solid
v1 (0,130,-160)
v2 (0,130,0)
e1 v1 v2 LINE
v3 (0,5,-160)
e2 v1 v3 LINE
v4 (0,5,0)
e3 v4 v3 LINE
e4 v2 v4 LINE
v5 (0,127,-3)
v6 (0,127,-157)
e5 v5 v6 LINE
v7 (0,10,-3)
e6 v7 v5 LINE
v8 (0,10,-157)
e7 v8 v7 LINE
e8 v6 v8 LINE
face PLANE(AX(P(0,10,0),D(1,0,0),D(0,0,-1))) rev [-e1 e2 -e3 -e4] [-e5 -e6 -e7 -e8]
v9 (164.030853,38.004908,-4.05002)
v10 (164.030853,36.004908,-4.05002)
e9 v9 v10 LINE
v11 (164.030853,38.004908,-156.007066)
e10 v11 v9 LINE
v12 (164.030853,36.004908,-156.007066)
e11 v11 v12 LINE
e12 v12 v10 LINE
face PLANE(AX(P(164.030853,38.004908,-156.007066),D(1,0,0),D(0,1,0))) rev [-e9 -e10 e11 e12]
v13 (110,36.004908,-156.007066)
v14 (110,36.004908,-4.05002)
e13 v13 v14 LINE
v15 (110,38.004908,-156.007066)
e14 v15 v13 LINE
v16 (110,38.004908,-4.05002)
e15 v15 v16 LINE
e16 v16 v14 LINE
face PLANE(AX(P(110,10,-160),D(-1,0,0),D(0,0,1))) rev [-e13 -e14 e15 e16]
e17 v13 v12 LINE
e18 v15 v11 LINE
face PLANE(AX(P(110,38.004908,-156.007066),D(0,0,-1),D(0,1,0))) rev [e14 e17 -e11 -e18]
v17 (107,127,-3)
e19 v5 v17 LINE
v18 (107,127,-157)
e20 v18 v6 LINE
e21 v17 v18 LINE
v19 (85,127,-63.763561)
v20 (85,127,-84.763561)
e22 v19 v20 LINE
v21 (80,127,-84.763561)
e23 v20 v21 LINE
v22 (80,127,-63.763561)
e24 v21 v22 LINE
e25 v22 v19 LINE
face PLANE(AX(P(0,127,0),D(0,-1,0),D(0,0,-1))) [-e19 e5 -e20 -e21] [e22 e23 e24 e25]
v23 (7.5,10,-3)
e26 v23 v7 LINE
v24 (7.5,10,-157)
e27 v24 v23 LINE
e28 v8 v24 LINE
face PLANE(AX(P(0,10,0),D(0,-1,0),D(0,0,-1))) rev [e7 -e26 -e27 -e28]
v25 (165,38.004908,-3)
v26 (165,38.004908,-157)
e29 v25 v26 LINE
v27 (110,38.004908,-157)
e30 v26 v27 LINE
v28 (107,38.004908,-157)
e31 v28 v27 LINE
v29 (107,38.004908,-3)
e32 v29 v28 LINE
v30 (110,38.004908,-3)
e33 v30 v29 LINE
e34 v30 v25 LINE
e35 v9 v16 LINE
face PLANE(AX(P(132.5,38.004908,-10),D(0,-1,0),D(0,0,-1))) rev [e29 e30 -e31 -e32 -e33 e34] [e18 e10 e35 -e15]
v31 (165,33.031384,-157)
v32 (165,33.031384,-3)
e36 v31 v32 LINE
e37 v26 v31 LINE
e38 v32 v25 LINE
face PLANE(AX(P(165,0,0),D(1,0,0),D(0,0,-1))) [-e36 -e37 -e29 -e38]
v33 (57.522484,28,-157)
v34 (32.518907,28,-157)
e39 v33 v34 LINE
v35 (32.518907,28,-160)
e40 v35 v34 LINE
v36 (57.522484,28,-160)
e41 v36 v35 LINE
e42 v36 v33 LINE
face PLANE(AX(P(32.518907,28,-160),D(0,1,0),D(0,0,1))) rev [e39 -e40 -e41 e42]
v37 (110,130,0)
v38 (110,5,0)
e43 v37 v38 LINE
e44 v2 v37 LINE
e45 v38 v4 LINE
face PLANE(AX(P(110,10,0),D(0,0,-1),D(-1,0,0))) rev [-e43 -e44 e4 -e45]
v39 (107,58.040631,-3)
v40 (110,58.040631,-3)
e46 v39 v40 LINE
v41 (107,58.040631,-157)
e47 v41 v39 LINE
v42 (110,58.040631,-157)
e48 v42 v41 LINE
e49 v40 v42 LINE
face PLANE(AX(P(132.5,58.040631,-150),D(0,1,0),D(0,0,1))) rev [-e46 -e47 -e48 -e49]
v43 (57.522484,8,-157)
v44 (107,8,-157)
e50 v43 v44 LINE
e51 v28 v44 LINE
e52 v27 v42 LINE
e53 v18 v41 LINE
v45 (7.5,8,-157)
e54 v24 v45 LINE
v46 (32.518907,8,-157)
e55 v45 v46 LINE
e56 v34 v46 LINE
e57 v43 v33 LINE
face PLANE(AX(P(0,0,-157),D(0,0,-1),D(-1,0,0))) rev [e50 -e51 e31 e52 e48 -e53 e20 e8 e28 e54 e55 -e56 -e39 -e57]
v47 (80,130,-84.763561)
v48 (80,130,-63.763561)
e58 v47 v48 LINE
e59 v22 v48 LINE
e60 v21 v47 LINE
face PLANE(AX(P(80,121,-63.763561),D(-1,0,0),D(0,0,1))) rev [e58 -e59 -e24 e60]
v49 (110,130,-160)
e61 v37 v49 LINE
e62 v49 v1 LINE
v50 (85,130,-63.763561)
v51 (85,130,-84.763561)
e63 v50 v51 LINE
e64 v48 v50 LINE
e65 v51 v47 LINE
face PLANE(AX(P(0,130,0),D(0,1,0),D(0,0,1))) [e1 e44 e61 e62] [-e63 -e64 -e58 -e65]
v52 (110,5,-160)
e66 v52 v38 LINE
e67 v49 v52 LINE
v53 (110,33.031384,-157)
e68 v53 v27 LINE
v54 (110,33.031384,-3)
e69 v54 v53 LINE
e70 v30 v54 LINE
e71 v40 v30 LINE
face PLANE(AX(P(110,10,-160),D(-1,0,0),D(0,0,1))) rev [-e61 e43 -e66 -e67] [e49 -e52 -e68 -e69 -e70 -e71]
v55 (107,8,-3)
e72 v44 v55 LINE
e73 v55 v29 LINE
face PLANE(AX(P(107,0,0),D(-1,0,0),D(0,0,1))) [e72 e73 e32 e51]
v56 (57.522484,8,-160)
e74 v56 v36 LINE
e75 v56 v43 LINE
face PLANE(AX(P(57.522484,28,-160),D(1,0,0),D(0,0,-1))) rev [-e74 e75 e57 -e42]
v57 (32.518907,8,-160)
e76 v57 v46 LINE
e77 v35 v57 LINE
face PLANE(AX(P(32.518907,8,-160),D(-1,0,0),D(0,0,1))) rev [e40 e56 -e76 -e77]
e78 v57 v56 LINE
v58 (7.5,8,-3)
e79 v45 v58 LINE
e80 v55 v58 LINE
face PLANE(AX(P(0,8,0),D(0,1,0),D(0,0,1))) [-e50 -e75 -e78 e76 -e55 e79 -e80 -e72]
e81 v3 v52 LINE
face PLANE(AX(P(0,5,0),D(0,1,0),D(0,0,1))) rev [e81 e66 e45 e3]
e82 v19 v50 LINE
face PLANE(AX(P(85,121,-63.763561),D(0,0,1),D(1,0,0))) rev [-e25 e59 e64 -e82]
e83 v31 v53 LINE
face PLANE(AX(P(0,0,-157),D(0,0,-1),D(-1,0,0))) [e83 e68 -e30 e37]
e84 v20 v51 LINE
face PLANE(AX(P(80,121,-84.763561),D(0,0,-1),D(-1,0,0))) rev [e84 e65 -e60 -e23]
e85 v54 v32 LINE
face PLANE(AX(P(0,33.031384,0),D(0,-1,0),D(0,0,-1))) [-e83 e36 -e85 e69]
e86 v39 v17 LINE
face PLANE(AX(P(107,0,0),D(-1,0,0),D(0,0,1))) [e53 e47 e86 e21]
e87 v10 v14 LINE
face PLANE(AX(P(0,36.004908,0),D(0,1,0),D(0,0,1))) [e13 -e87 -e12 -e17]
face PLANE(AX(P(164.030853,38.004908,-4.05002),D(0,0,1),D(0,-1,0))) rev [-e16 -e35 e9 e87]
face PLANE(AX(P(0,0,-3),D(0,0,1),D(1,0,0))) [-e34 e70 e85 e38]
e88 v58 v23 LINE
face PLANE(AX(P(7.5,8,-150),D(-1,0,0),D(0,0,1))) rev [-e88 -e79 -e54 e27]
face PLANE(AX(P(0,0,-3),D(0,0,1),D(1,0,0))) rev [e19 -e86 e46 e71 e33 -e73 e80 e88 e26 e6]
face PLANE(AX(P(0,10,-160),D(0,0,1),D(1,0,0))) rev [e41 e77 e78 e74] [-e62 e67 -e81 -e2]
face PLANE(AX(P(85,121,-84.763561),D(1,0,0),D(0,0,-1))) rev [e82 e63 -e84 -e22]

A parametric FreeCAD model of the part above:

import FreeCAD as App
import Part
import Sketcher
from FreeCAD import Vector

doc = App.newDocument("Part")
body = doc.addObject("PartDesign::Body", "Body")

# Sketch on XZ plane
sketch1 = body.newObject("Sketcher::SketchObject", "Sketch")
sketch1.AttachmentSupport = (doc.getObject("XZ_Plane"), [""])
sketch1.MapMode = "FlatFace"
sketch1.addGeometry(Part.LineSegment(Vector(0, -160, 0), Vector(0, 0, 0)), False)
sketch1.addGeometry(Part.LineSegment(Vector(0, 0, 0), Vector(110, 0, 0)), False)
sketch1.addGeometry(Part.LineSegment(Vector(110, 0, 0), Vector(110, -160, 0)), False)
sketch1.addGeometry(Part.LineSegment(Vector(110, -160, 0), Vector(0, -160, 0)), False)
sketch1.addConstraint(Sketcher.Constraint("Coincident", 0, 2, 1, 1))
sketch1.addConstraint(Sketcher.Constraint("Coincident", 1, 2, 2, 1))
sketch1.addConstraint(Sketcher.Constraint("Coincident", 2, 2, 3, 1))
sketch1.addConstraint(Sketcher.Constraint("Coincident", 3, 2, 0, 1))
sketch1.addConstraint(Sketcher.Constraint("Vertical", 0))
sketch1.addConstraint(Sketcher.Constraint("Horizontal", 1))
sketch1.addConstraint(Sketcher.Constraint("Vertical", 2))
sketch1.addConstraint(Sketcher.Constraint("Horizontal", 3))
sketch1.addConstraint(Sketcher.Constraint("Coincident", 0, 2, -1, 1))
sketch1.addConstraint(Sketcher.Constraint("DistanceX", 1, 1, 1, 2, 110.0))
sketch1.addConstraint(Sketcher.Constraint("DistanceY", 0, 1, 0, 2, 160.0))
pad1 = body.newObject("PartDesign::Pad", "Pad")
pad1.Profile = sketch1
pad1.Length = 10
pad1.Reversed = True

# Sketch on XZ plane
sketch2 = body.newObject("Sketcher::SketchObject", "Sketch001")
sketch2.AttachmentSupport = (doc.getObject("XZ_Plane"), [""])
sketch2.MapMode = "FlatFace"
sketch2.AttachmentOffset = App.Placement(Vector(0, 0, -10), App.Rotation())
sketch2.addGeometry(Part.LineSegment(Vector(7.5, -150, 0), Vector(7.5, -10, 0)), False)
sketch2.addGeometry(Part.LineSegment(Vector(7.5, -10, 0), Vector(102.5, -10, 0)), False)
sketch2.addGeometry(Part.LineSegment(Vector(102.5, -10, 0), Vector(102.5, -150, 0)), False)
sketch2.addGeometry(Part.LineSegment(Vector(102.5, -150, 0), Vector(7.5, -150, 0)), False)
sketch2.addConstraint(Sketcher.Constraint("Coincident", 0, 2, 1, 1))
sketch2.addConstraint(Sketcher.Constraint("Coincident", 1, 2, 2, 1))
sketch2.addConstraint(Sketcher.Constraint("Coincident", 2, 2, 3, 1))
sketch2.addConstraint(Sketcher.Constraint("Coincident", 3, 2, 0, 1))
sketch2.addConstraint(Sketcher.Constraint("Vertical", 0))
sketch2.addConstraint(Sketcher.Constraint("Horizontal", 1))
sketch2.addConstraint(Sketcher.Constraint("Vertical", 2))
sketch2.addConstraint(Sketcher.Constraint("Horizontal", 3))
sketch2.addConstraint(Sketcher.Constraint("DistanceX", 1, 1, 1, 2, 95.0))
sketch2.addConstraint(Sketcher.Constraint("DistanceY", 0, 1, 0, 2, 140.0))
sketch2.addConstraint(Sketcher.Constraint("DistanceY", 0, 2, -1, 1, 10.0))
sketch2.addConstraint(Sketcher.Constraint("DistanceX", -1, 1, 0, 2, 7.5))
pocket1 = body.newObject("PartDesign::Pocket", "Pocket")
pocket1.Profile = sketch2
pocket1.Length = 2
pocket1.Reversed = True

# Sketch on XZ plane
sketch3 = body.newObject("Sketcher::SketchObject", "Sketch002")
sketch3.AttachmentSupport = (doc.getObject("XZ_Plane"), [""])
sketch3.MapMode = "FlatFace"
sketch3.AttachmentOffset = App.Placement(Vector(0, 0, -10), App.Rotation())
sketch3.addGeometry(Part.LineSegment(Vector(0, -160, 0), Vector(0, -150, 0)), False)
sketch3.addGeometry(Part.LineSegment(Vector(0, -150, 0), Vector(102.5, -150, 0)), False)
sketch3.addGeometry(Part.LineSegment(Vector(102.5, -150, 0), Vector(102.5, -10, 0)), False)
sketch3.addGeometry(Part.LineSegment(Vector(102.5, -10, 0), Vector(0, -10, 0)), False)
sketch3.addGeometry(Part.LineSegment(Vector(0, -10, 0), Vector(0, 0, 0)), False)
sketch3.addGeometry(Part.LineSegment(Vector(0, 0, 0), Vector(110, 0, 0)), False)
sketch3.addGeometry(Part.LineSegment(Vector(110, 0, 0), Vector(110, -160, 0)), False)
sketch3.addGeometry(Part.LineSegment(Vector(110, -160, 0), Vector(0, -160, 0)), False)
sketch3.addConstraint(Sketcher.Constraint("Coincident", 0, 2, 1, 1))
sketch3.addConstraint(Sketcher.Constraint("Coincident", 1, 2, 2, 1))
sketch3.addConstraint(Sketcher.Constraint("Coincident", 2, 2, 3, 1))
sketch3.addConstraint(Sketcher.Constraint("Coincident", 3, 2, 4, 1))
sketch3.addConstraint(Sketcher.Constraint("Coincident", 4, 2, 5, 1))
sketch3.addConstraint(Sketcher.Constraint("Coincident", 5, 2, 6, 1))
sketch3.addConstraint(Sketcher.Constraint("Coincident", 6, 2, 7, 1))
sketch3.addConstraint(Sketcher.Constraint("Coincident", 7, 2, 0, 1))
sketch3.addConstraint(Sketcher.Constraint("Vertical", 0))
sketch3.addConstraint(Sketcher.Constraint("Horizontal", 1))
sketch3.addConstraint(Sketcher.Constraint("Vertical", 2))
sketch3.addConstraint(Sketcher.Constraint("Horizontal", 3))
sketch3.addConstraint(Sketcher.Constraint("Vertical", 4))
sketch3.addConstraint(Sketcher.Constraint("Horizontal", 5))
sketch3.addConstraint(Sketcher.Constraint("Vertical", 6))
sketch3.addConstraint(Sketcher.Constraint("Horizontal", 7))
sketch3.addConstraint(Sketcher.Constraint("Coincident", 4, 2, -1, 1))
sketch3.addConstraint(Sketcher.Constraint("PointOnObject", 0, 2, -2))
sketch3.addConstraint(Sketcher.Constraint("Equal", 0, 4))
sketch3.addConstraint(Sketcher.Constraint("DistanceX", 5, 1, 5, 2, 110.0))
sketch3.addConstraint(Sketcher.Constraint("DistanceY", 0, 1, 0, 2, 10.0))
sketch3.addConstraint(Sketcher.Constraint("DistanceY", 2, 1, 2, 2, 140.0))
sketch3.addConstraint(Sketcher.Constraint("DistanceX", 1, 1, 1, 2, 102.5))
pad2 = body.newObject("PartDesign::Pad", "Pad001")
pad2.Profile = sketch3
pad2.Length = 110
pad2.Reversed = True

# Sketch on XY plane
sketch4 = body.newObject("Sketcher::SketchObject", "Sketch003")
sketch4.AttachmentSupport = (doc.getObject("XY_Plane"), [""])
sketch4.MapMode = "FlatFace"
sketch4.AttachmentOffset = App.Placement(Vector(0, 0, -150), App.Rotation())
sketch4.addGeometry(Part.LineSegment(Vector(32.518907, 28, 0), Vector(32.518907, 8, 0)), False)
sketch4.addGeometry(Part.LineSegment(Vector(32.518907, 8, 0), Vector(57.522484, 8, 0)), False)
sketch4.addGeometry(Part.LineSegment(Vector(57.522484, 8, 0), Vector(57.522484, 28, 0)), False)
sketch4.addGeometry(Part.LineSegment(Vector(57.522484, 28, 0), Vector(32.518907, 28, 0)), False)
sketch4.addConstraint(Sketcher.Constraint("Coincident", 0, 2, 1, 1))
sketch4.addConstraint(Sketcher.Constraint("Coincident", 1, 2, 2, 1))
sketch4.addConstraint(Sketcher.Constraint("Coincident", 2, 2, 3, 1))
sketch4.addConstraint(Sketcher.Constraint("Coincident", 3, 2, 0, 1))
sketch4.addConstraint(Sketcher.Constraint("Vertical", 0))
sketch4.addConstraint(Sketcher.Constraint("Horizontal", 1))
sketch4.addConstraint(Sketcher.Constraint("Vertical", 2))
sketch4.addConstraint(Sketcher.Constraint("Horizontal", 3))
sketch4.addConstraint(Sketcher.Constraint("DistanceY", 0, 2, 0, 1, 20.0))
sketch4.addConstraint(Sketcher.Constraint("DistanceY", -1, 1, 0, 2, 8.0))
sketch4.addConstraint(Sketcher.Constraint("DistanceX", 1, 1, 1, 2, 25.003577))
sketch4.addConstraint(Sketcher.Constraint("DistanceX", -1, 1, 0, 2, 32.518907))
pocket2 = body.newObject("PartDesign::Pocket", "Pocket001")
pocket2.Profile = sketch4
pocket2.Length = 10

# Sketch on YZ plane
sketch5 = body.newObject("Sketcher::SketchObject", "Sketch004")
sketch5.AttachmentSupport = (doc.getObject("YZ_Plane"), [""])
sketch5.MapMode = "FlatFace"
sketch5.AttachmentOffset = App.Placement(Vector(0, 0, 102.5), App.Rotation())
sketch5.addGeometry(Part.LineSegment(Vector(58.040631, -150, 0), Vector(38.004908, -150, 0)), False)
sketch5.addGeometry(Part.LineSegment(Vector(38.004908, -150, 0), Vector(38.004908, -10, 0)), False)
sketch5.addGeometry(Part.LineSegment(Vector(38.004908, -10, 0), Vector(58.040631, -10, 0)), False)
sketch5.addGeometry(Part.LineSegment(Vector(58.040631, -10, 0), Vector(58.040631, -150, 0)), False)
sketch5.addConstraint(Sketcher.Constraint("Coincident", 0, 2, 1, 1))
sketch5.addConstraint(Sketcher.Constraint("Coincident", 1, 2, 2, 1))
sketch5.addConstraint(Sketcher.Constraint("Coincident", 2, 2, 3, 1))
sketch5.addConstraint(Sketcher.Constraint("Coincident", 3, 2, 0, 1))
sketch5.addConstraint(Sketcher.Constraint("Horizontal", 0))
sketch5.addConstraint(Sketcher.Constraint("Vertical", 1))
sketch5.addConstraint(Sketcher.Constraint("Horizontal", 2))
sketch5.addConstraint(Sketcher.Constraint("Vertical", 3))
sketch5.addConstraint(Sketcher.Constraint("DistanceY", 1, 1, 1, 2, 140.0))
sketch5.addConstraint(Sketcher.Constraint("DistanceY", 0, 2, -1, 1, 150.0))
sketch5.addConstraint(Sketcher.Constraint("DistanceX", 0, 2, 0, 1, 20.035723))
sketch5.addConstraint(Sketcher.Constraint("DistanceX", -1, 1, 2, 2, 58.040631))
pocket3 = body.newObject("PartDesign::Pocket", "Pocket002")
pocket3.Profile = sketch5
pocket3.Length = 30
pocket3.Reversed = True

# Sketch on YZ plane
sketch6 = body.newObject("Sketcher::SketchObject", "Sketch005")
sketch6.AttachmentSupport = (doc.getObject("YZ_Plane"), [""])
sketch6.MapMode = "FlatFace"
sketch6.AttachmentOffset = App.Placement(Vector(0, 0, 110), App.Rotation())
sketch6.addGeometry(Part.LineSegment(Vector(38.004908, -10, 0), Vector(28.031384, -10, 0)), False)
sketch6.addGeometry(Part.LineSegment(Vector(28.031384, -10, 0), Vector(28.031384, -150, 0)), False)
sketch6.addGeometry(Part.LineSegment(Vector(28.031384, -150, 0), Vector(38.004908, -150, 0)), False)
sketch6.addGeometry(Part.LineSegment(Vector(38.004908, -150, 0), Vector(38.004908, -10, 0)), False)
sketch6.addConstraint(Sketcher.Constraint("Coincident", 0, 2, 1, 1))
sketch6.addConstraint(Sketcher.Constraint("Coincident", 1, 2, 2, 1))
sketch6.addConstraint(Sketcher.Constraint("Coincident", 2, 2, 3, 1))
sketch6.addConstraint(Sketcher.Constraint("Coincident", 3, 2, 0, 1))
sketch6.addConstraint(Sketcher.Constraint("Horizontal", 0))
sketch6.addConstraint(Sketcher.Constraint("Vertical", 1))
sketch6.addConstraint(Sketcher.Constraint("Horizontal", 2))
sketch6.addConstraint(Sketcher.Constraint("Vertical", 3))
sketch6.addConstraint(Sketcher.Constraint("DistanceY", 1, 2, 1, 1, 140.0))
sketch6.addConstraint(Sketcher.Constraint("DistanceY", 0, 2, -1, 1, 10.0))
sketch6.addConstraint(Sketcher.Constraint("DistanceX", 0, 2, 0, 1, 9.973523))
sketch6.addConstraint(Sketcher.Constraint("DistanceX", -1, 1, 0, 2, 28.031384))
pad3 = body.newObject("PartDesign::Pad", "Pad002")
pad3.Profile = sketch6
pad3.Length = 55

# Sketch on XZ plane
sketch7 = body.newObject("Sketcher::SketchObject", "Sketch006")
sketch7.AttachmentSupport = (doc.getObject("XZ_Plane"), [""])
sketch7.MapMode = "FlatFace"
sketch7.AttachmentOffset = App.Placement(Vector(0, 0, -38.004908), App.Rotation())
sketch7.addGeometry(Part.LineSegment(Vector(110, -150, 0), Vector(110, -10, 0)), False)
sketch7.addGeometry(Part.LineSegment(Vector(110, -10, 0), Vector(165, -10, 0)), False)
sketch7.addGeometry(Part.LineSegment(Vector(165, -10, 0), Vector(165, -150, 0)), False)
sketch7.addGeometry(Part.LineSegment(Vector(165, -150, 0), Vector(110, -150, 0)), False)
sketch7.addConstraint(Sketcher.Constraint("Coincident", 0, 2, 1, 1))
sketch7.addConstraint(Sketcher.Constraint("Coincident", 1, 2, 2, 1))
sketch7.addConstraint(Sketcher.Constraint("Coincident", 2, 2, 3, 1))
sketch7.addConstraint(Sketcher.Constraint("Coincident", 3, 2, 0, 1))
sketch7.addConstraint(Sketcher.Constraint("Vertical", 0))
sketch7.addConstraint(Sketcher.Constraint("Horizontal", 1))
sketch7.addConstraint(Sketcher.Constraint("Vertical", 2))
sketch7.addConstraint(Sketcher.Constraint("Horizontal", 3))
sketch7.addConstraint(Sketcher.Constraint("DistanceX", 1, 1, 1, 2, 55.0))
sketch7.addConstraint(Sketcher.Constraint("DistanceY", 0, 1, 0, 2, 140.0))
sketch7.addConstraint(Sketcher.Constraint("DistanceX", -1, 1, 0, 2, 110.0))
sketch7.addConstraint(Sketcher.Constraint("DistanceY", 0, 2, -1, 1, 10.0))
pocket4 = body.newObject("PartDesign::Pocket", "Pocket003")
pocket4.Profile = sketch7
pocket4.Length = 2
pocket4.Reversed = True

# Sketch on XZ plane
sketch8 = body.newObject("Sketcher::SketchObject", "Sketch007")
sketch8.AttachmentSupport = (doc.getObject("XZ_Plane"), [""])
sketch8.MapMode = "FlatFace"
sketch8.AttachmentOffset = App.Placement(Vector(0, 0, -120), App.Rotation())
sketch8.addGeometry(Part.LineSegment(Vector(0, -160, 0), Vector(0, 0, 0)), False)
sketch8.addGeometry(Part.LineSegment(Vector(0, 0, 0), Vector(110, 0, 0)), False)
sketch8.addGeometry(Part.LineSegment(Vector(110, 0, 0), Vector(110, -160, 0)), False)
sketch8.addGeometry(Part.LineSegment(Vector(110, -160, 0), Vector(0, -160, 0)), False)
sketch8.addConstraint(Sketcher.Constraint("Coincident", 0, 2, 1, 1))
sketch8.addConstraint(Sketcher.Constraint("Coincident", 1, 2, 2, 1))
sketch8.addConstraint(Sketcher.Constraint("Coincident", 2, 2, 3, 1))
sketch8.addConstraint(Sketcher.Constraint("Coincident", 3, 2, 0, 1))
sketch8.addConstraint(Sketcher.Constraint("Vertical", 0))
sketch8.addConstraint(Sketcher.Constraint("Horizontal", 1))
sketch8.addConstraint(Sketcher.Constraint("Vertical", 2))
sketch8.addConstraint(Sketcher.Constraint("Horizontal", 3))
sketch8.addConstraint(Sketcher.Constraint("Coincident", 0, 2, -1, 1))
sketch8.addConstraint(Sketcher.Constraint("DistanceX", 1, 1, 1, 2, 110.0))
sketch8.addConstraint(Sketcher.Constraint("DistanceY", 0, 1, 0, 2, 160.0))
pad4 = body.newObject("PartDesign::Pad", "Pad003")
pad4.Profile = sketch8
pad4.Length = 10
pad4.Reversed = True

# Sketch on XZ plane
sketch9 = body.newObject("Sketcher::SketchObject", "Sketch008")
sketch9.AttachmentSupport = (doc.getObject("XZ_Plane"), [""])
sketch9.MapMode = "FlatFace"
sketch9.AttachmentOffset = App.Placement(Vector(0, 0, -130), App.Rotation())
sketch9.addGeometry(Part.LineSegment(Vector(80, -84.763561, 0), Vector(80, -63.763561, 0)), False)
sketch9.addGeometry(Part.LineSegment(Vector(80, -63.763561, 0), Vector(85, -63.763561, 0)), False)
sketch9.addGeometry(Part.LineSegment(Vector(85, -63.763561, 0), Vector(85, -84.763561, 0)), False)
sketch9.addGeometry(Part.LineSegment(Vector(85, -84.763561, 0), Vector(80, -84.763561, 0)), False)
sketch9.addConstraint(Sketcher.Constraint("Coincident", 0, 2, 1, 1))
sketch9.addConstraint(Sketcher.Constraint("Coincident", 1, 2, 2, 1))
sketch9.addConstraint(Sketcher.Constraint("Coincident", 2, 2, 3, 1))
sketch9.addConstraint(Sketcher.Constraint("Coincident", 3, 2, 0, 1))
sketch9.addConstraint(Sketcher.Constraint("Vertical", 0))
sketch9.addConstraint(Sketcher.Constraint("Horizontal", 1))
sketch9.addConstraint(Sketcher.Constraint("Vertical", 2))
sketch9.addConstraint(Sketcher.Constraint("Horizontal", 3))
sketch9.addConstraint(Sketcher.Constraint("DistanceX", 1, 1, 1, 2, 5.0))
sketch9.addConstraint(Sketcher.Constraint("DistanceY", 0, 1, 0, 2, 21.0))
sketch9.addConstraint(Sketcher.Constraint("DistanceX", -1, 1, 0, 2, 80.0))
sketch9.addConstraint(Sketcher.Constraint("DistanceY", 0, 2, -1, 1, 63.763561))
pocket5 = body.newObject("PartDesign::Pocket", "Pocket004")
pocket5.Profile = sketch9
pocket5.Length = 9
pocket5.Reversed = True

# Sketch on XZ plane
sketch10 = body.newObject("Sketcher::SketchObject", "Sketch009")
sketch10.AttachmentSupport = (doc.getObject("XZ_Plane"), [""])
sketch10.MapMode = "FlatFace"
sketch10.AttachmentOffset = App.Placement(Vector(0, 0, -120), App.Rotation())
sketch10.addGeometry(Part.LineSegment(Vector(0, -10, 0), Vector(0, -150, 0)), False)
sketch10.addGeometry(Part.LineSegment(Vector(0, -150, 0), Vector(102.5, -150, 0)), False)
sketch10.addGeometry(Part.LineSegment(Vector(102.5, -150, 0), Vector(102.5, -10, 0)), False)
sketch10.addGeometry(Part.LineSegment(Vector(102.5, -10, 0), Vector(0, -10, 0)), False)
sketch10.addConstraint(Sketcher.Constraint("Coincident", 0, 2, 1, 1))
sketch10.addConstraint(Sketcher.Constraint("Coincident", 1, 2, 2, 1))
sketch10.addConstraint(Sketcher.Constraint("Coincident", 2, 2, 3, 1))
sketch10.addConstraint(Sketcher.Constraint("Coincident", 3, 2, 0, 1))
sketch10.addConstraint(Sketcher.Constraint("Vertical", 0))
sketch10.addConstraint(Sketcher.Constraint("Horizontal", 1))
sketch10.addConstraint(Sketcher.Constraint("Vertical", 2))
sketch10.addConstraint(Sketcher.Constraint("Horizontal", 3))
sketch10.addConstraint(Sketcher.Constraint("PointOnObject", 0, 2, -2))
sketch10.addConstraint(Sketcher.Constraint("DistanceY", 0, 2, 0, 1, 140.0))
sketch10.addConstraint(Sketcher.Constraint("DistanceX", 1, 1, 1, 2, 102.5))
sketch10.addConstraint(Sketcher.Constraint("DistanceY", 0, 2, -1, 1, 150.0))
pocket6 = body.newObject("PartDesign::Pocket", "Pocket005")
pocket6.Profile = sketch10
pocket6.Length = 7

# Sketch on XY plane
sketch11 = body.newObject("Sketcher::SketchObject", "Sketch010")
sketch11.AttachmentSupport = (doc.getObject("XY_Plane"), [""])
sketch11.MapMode = "FlatFace"
sketch11.AttachmentOffset = App.Placement(Vector(0, 0, -150), App.Rotation())
sketch11.addGeometry(Part.LineSegment(Vector(7.5, 10, 0), Vector(7.5, 8, 0)), False)
sketch11.addGeometry(Part.LineSegment(Vector(7.5, 8, 0), Vector(102.5, 8, 0)), False)
sketch11.addGeometry(Part.LineSegment(Vector(102.5, 8, 0), Vector(102.5, 38.004908, 0)), False)
sketch11.addGeometry(Part.LineSegment(Vector(102.5, 38.004908, 0), Vector(110, 38.004908, 0)), False)
sketch11.addGeometry(Part.LineSegment(Vector(110, 38.004908, 0), Vector(110, 58.040631, 0)), False)
sketch11.addGeometry(Part.LineSegment(Vector(110, 58.040631, 0), Vector(102.5, 58.040631, 0)), False)
sketch11.addGeometry(Part.LineSegment(Vector(102.5, 58.040631, 0), Vector(102.5, 127, 0)), False)
sketch11.addGeometry(Part.LineSegment(Vector(102.5, 127, 0), Vector(0, 127, 0)), False)
sketch11.addGeometry(Part.LineSegment(Vector(0, 127, 0), Vector(0, 10, 0)), False)
sketch11.addGeometry(Part.LineSegment(Vector(0, 10, 0), Vector(7.5, 10, 0)), False)
sketch11.addConstraint(Sketcher.Constraint("Coincident", 0, 2, 1, 1))
sketch11.addConstraint(Sketcher.Constraint("Coincident", 1, 2, 2, 1))
sketch11.addConstraint(Sketcher.Constraint("Coincident", 2, 2, 3, 1))
sketch11.addConstraint(Sketcher.Constraint("Coincident", 3, 2, 4, 1))
sketch11.addConstraint(Sketcher.Constraint("Coincident", 4, 2, 5, 1))
sketch11.addConstraint(Sketcher.Constraint("Coincident", 5, 2, 6, 1))
sketch11.addConstraint(Sketcher.Constraint("Coincident", 6, 2, 7, 1))
sketch11.addConstraint(Sketcher.Constraint("Coincident", 7, 2, 8, 1))
sketch11.addConstraint(Sketcher.Constraint("Coincident", 8, 2, 9, 1))
sketch11.addConstraint(Sketcher.Constraint("Coincident", 9, 2, 0, 1))
sketch11.addConstraint(Sketcher.Constraint("Vertical", 0))
sketch11.addConstraint(Sketcher.Constraint("Horizontal", 1))
sketch11.addConstraint(Sketcher.Constraint("Vertical", 2))
sketch11.addConstraint(Sketcher.Constraint("Horizontal", 3))
sketch11.addConstraint(Sketcher.Constraint("Vertical", 4))
sketch11.addConstraint(Sketcher.Constraint("Horizontal", 5))
sketch11.addConstraint(Sketcher.Constraint("Vertical", 6))
sketch11.addConstraint(Sketcher.Constraint("Horizontal", 7))
sketch11.addConstraint(Sketcher.Constraint("Vertical", 8))
sketch11.addConstraint(Sketcher.Constraint("Horizontal", 9))
sketch11.addConstraint(Sketcher.Constraint("PointOnObject", 7, 2, -2))
sketch11.addConstraint(Sketcher.Constraint("Vertical", 2, 2, 5, 2))
sketch11.addConstraint(Sketcher.Constraint("Equal", 5, 9))
sketch11.addConstraint(Sketcher.Constraint("DistanceX", 1, 1, 1, 2, 95.0))
sketch11.addConstraint(Sketcher.Constraint("DistanceY", 0, 2, 0, 1, 2.0))
sketch11.addConstraint(Sketcher.Constraint("DistanceY", 8, 2, 8, 1, 117.0))
sketch11.addConstraint(Sketcher.Constraint("DistanceX", 3, 1, 3, 2, 7.5))
sketch11.addConstraint(Sketcher.Constraint("DistanceY", -1, 1, 0, 2, 8.0))
sketch11.addConstraint(Sketcher.Constraint("DistanceY", 6, 1, 6, 2, 68.959369))
sketch11.addConstraint(Sketcher.Constraint("DistanceY", 2, 1, 2, 2, 30.004908))
pocket7 = body.newObject("PartDesign::Pocket", "Pocket006")
pocket7.Profile = sketch11
pocket7.Length = 7

# Sketch on XY plane
sketch12 = body.newObject("Sketcher::SketchObject", "Sketch011")
sketch12.AttachmentSupport = (doc.getObject("XY_Plane"), [""])
sketch12.MapMode = "FlatFace"
sketch12.AttachmentOffset = App.Placement(Vector(0, 0, -10), App.Rotation())
sketch12.addGeometry(Part.LineSegment(Vector(0, 127, 0), Vector(102.5, 127, 0)), False)
sketch12.addGeometry(Part.LineSegment(Vector(102.5, 127, 0), Vector(102.5, 58.040631, 0)), False)
sketch12.addGeometry(Part.LineSegment(Vector(102.5, 58.040631, 0), Vector(110, 58.040631, 0)), False)
sketch12.addGeometry(Part.LineSegment(Vector(110, 58.040631, 0), Vector(110, 38.004908, 0)), False)
sketch12.addGeometry(Part.LineSegment(Vector(110, 38.004908, 0), Vector(102.5, 38.004908, 0)), False)
sketch12.addGeometry(Part.LineSegment(Vector(102.5, 38.004908, 0), Vector(102.5, 8, 0)), False)
sketch12.addGeometry(Part.LineSegment(Vector(102.5, 8, 0), Vector(7.5, 8, 0)), False)
sketch12.addGeometry(Part.LineSegment(Vector(7.5, 8, 0), Vector(7.5, 10, 0)), False)
sketch12.addGeometry(Part.LineSegment(Vector(7.5, 10, 0), Vector(0, 10, 0)), False)
sketch12.addGeometry(Part.LineSegment(Vector(0, 10, 0), Vector(0, 127, 0)), False)
sketch12.addConstraint(Sketcher.Constraint("Coincident", 0, 2, 1, 1))
sketch12.addConstraint(Sketcher.Constraint("Coincident", 1, 2, 2, 1))
sketch12.addConstraint(Sketcher.Constraint("Coincident", 2, 2, 3, 1))
sketch12.addConstraint(Sketcher.Constraint("Coincident", 3, 2, 4, 1))
sketch12.addConstraint(Sketcher.Constraint("Coincident", 4, 2, 5, 1))
sketch12.addConstraint(Sketcher.Constraint("Coincident", 5, 2, 6, 1))
sketch12.addConstraint(Sketcher.Constraint("Coincident", 6, 2, 7, 1))
sketch12.addConstraint(Sketcher.Constraint("Coincident", 7, 2, 8, 1))
sketch12.addConstraint(Sketcher.Constraint("Coincident", 8, 2, 9, 1))
sketch12.addConstraint(Sketcher.Constraint("Coincident", 9, 2, 0, 1))
sketch12.addConstraint(Sketcher.Constraint("Horizontal", 0))
sketch12.addConstraint(Sketcher.Constraint("Vertical", 1))
sketch12.addConstraint(Sketcher.Constraint("Horizontal", 2))
sketch12.addConstraint(Sketcher.Constraint("Vertical", 3))
sketch12.addConstraint(Sketcher.Constraint("Horizontal", 4))
sketch12.addConstraint(Sketcher.Constraint("Vertical", 5))
sketch12.addConstraint(Sketcher.Constraint("Horizontal", 6))
sketch12.addConstraint(Sketcher.Constraint("Vertical", 7))
sketch12.addConstraint(Sketcher.Constraint("Horizontal", 8))
sketch12.addConstraint(Sketcher.Constraint("Vertical", 9))
sketch12.addConstraint(Sketcher.Constraint("PointOnObject", 8, 2, -2))
sketch12.addConstraint(Sketcher.Constraint("Vertical", 1, 2, 4, 2))
sketch12.addConstraint(Sketcher.Constraint("Equal", 4, 8))
sketch12.addConstraint(Sketcher.Constraint("DistanceX", 6, 2, 6, 1, 95.0))
sketch12.addConstraint(Sketcher.Constraint("DistanceY", 7, 1, 7, 2, 2.0))
sketch12.addConstraint(Sketcher.Constraint("DistanceY", 9, 1, 9, 2, 117.0))
sketch12.addConstraint(Sketcher.Constraint("DistanceX", 0, 1, 0, 2, 102.5))
sketch12.addConstraint(Sketcher.Constraint("DistanceY", -1, 1, 0, 2, 127.0))
sketch12.addConstraint(Sketcher.Constraint("DistanceY", 1, 2, 1, 1, 68.959369))
sketch12.addConstraint(Sketcher.Constraint("DistanceY", 3, 2, 3, 1, 20.035723))
pocket8 = body.newObject("PartDesign::Pocket", "Pocket007")
pocket8.Profile = sketch12
pocket8.Length = 7
pocket8.Reversed = True

# Sketch on XZ plane
sketch13 = body.newObject("Sketcher::SketchObject", "Sketch012")
sketch13.AttachmentSupport = (doc.getObject("XZ_Plane"), [""])
sketch13.MapMode = "FlatFace"
sketch13.addGeometry(Part.LineSegment(Vector(0, 0, 0), Vector(0, -160, 0)), False)
sketch13.addGeometry(Part.LineSegment(Vector(0, -160, 0), Vector(110, -160, 0)), False)
sketch13.addGeometry(Part.LineSegment(Vector(110, -160, 0), Vector(110, 0, 0)), False)
sketch13.addGeometry(Part.LineSegment(Vector(110, 0, 0), Vector(0, 0, 0)), False)
sketch13.addConstraint(Sketcher.Constraint("Coincident", 0, 2, 1, 1))
sketch13.addConstraint(Sketcher.Constraint("Coincident", 1, 2, 2, 1))
sketch13.addConstraint(Sketcher.Constraint("Coincident", 2, 2, 3, 1))
sketch13.addConstraint(Sketcher.Constraint("Coincident", 3, 2, 0, 1))
sketch13.addConstraint(Sketcher.Constraint("Vertical", 0))
sketch13.addConstraint(Sketcher.Constraint("Horizontal", 1))
sketch13.addConstraint(Sketcher.Constraint("Vertical", 2))
sketch13.addConstraint(Sketcher.Constraint("Horizontal", 3))
sketch13.addConstraint(Sketcher.Constraint("Coincident", 3, 2, -1, 1))
sketch13.addConstraint(Sketcher.Constraint("DistanceX", 1, 1, 1, 2, 110.0))
sketch13.addConstraint(Sketcher.Constraint("DistanceY", 0, 2, 0, 1, 160.0))
pocket9 = body.newObject("PartDesign::Pocket", "Pocket008")
pocket9.Profile = sketch13
pocket9.Length = 5

# Sketch on YZ plane
sketch14 = body.newObject("Sketcher::SketchObject", "Sketch013")
sketch14.AttachmentSupport = (doc.getObject("YZ_Plane"), [""])
sketch14.MapMode = "FlatFace"
sketch14.AttachmentOffset = App.Placement(Vector(0, 0, 102.5), App.Rotation())
sketch14.addGeometry(Part.LineSegment(Vector(127, -157, 0), Vector(8, -157, 0)), False)
sketch14.addGeometry(Part.LineSegment(Vector(8, -157, 0), Vector(8, -3, 0)), False)
sketch14.addGeometry(Part.LineSegment(Vector(8, -3, 0), Vector(127, -3, 0)), False)
sketch14.addGeometry(Part.LineSegment(Vector(127, -3, 0), Vector(127, -157, 0)), False)
sketch14.addConstraint(Sketcher.Constraint("Coincident", 0, 2, 1, 1))
sketch14.addConstraint(Sketcher.Constraint("Coincident", 1, 2, 2, 1))
sketch14.addConstraint(Sketcher.Constraint("Coincident", 2, 2, 3, 1))
sketch14.addConstraint(Sketcher.Constraint("Coincident", 3, 2, 0, 1))
sketch14.addConstraint(Sketcher.Constraint("Horizontal", 0))
sketch14.addConstraint(Sketcher.Constraint("Vertical", 1))
sketch14.addConstraint(Sketcher.Constraint("Horizontal", 2))
sketch14.addConstraint(Sketcher.Constraint("Vertical", 3))
sketch14.addConstraint(Sketcher.Constraint("DistanceX", 0, 2, 0, 1, 119.0))
sketch14.addConstraint(Sketcher.Constraint("DistanceY", 1, 1, 1, 2, 154.0))
sketch14.addConstraint(Sketcher.Constraint("DistanceX", -1, 1, 0, 2, 8.0))
sketch14.addConstraint(Sketcher.Constraint("DistanceY", 0, 2, -1, 1, 157.0))
pocket10 = body.newObject("PartDesign::Pocket", "Pocket009")
pocket10.Profile = sketch14
pocket10.Length = 4.5
pocket10.Reversed = True

# Sketch on XZ plane
sketch15 = body.newObject("Sketcher::SketchObject", "Sketch014")
sketch15.AttachmentSupport = (doc.getObject("XZ_Plane"), [""])
sketch15.MapMode = "FlatFace"
sketch15.AttachmentOffset = App.Placement(Vector(0, 0, -28.031384), App.Rotation())
sketch15.addGeometry(Part.LineSegment(Vector(110, -10, 0), Vector(110, -150, 0)), False)
sketch15.addGeometry(Part.LineSegment(Vector(110, -150, 0), Vector(165, -150, 0)), False)
sketch15.addGeometry(Part.LineSegment(Vector(165, -150, 0), Vector(165, -10, 0)), False)
sketch15.addGeometry(Part.LineSegment(Vector(165, -10, 0), Vector(110, -10, 0)), False)
sketch15.addConstraint(Sketcher.Constraint("Coincident", 0, 2, 1, 1))
sketch15.addConstraint(Sketcher.Constraint("Coincident", 1, 2, 2, 1))
sketch15.addConstraint(Sketcher.Constraint("Coincident", 2, 2, 3, 1))
sketch15.addConstraint(Sketcher.Constraint("Coincident", 3, 2, 0, 1))
sketch15.addConstraint(Sketcher.Constraint("Vertical", 0))
sketch15.addConstraint(Sketcher.Constraint("Horizontal", 1))
sketch15.addConstraint(Sketcher.Constraint("Vertical", 2))
sketch15.addConstraint(Sketcher.Constraint("Horizontal", 3))
sketch15.addConstraint(Sketcher.Constraint("DistanceX", 1, 1, 1, 2, 55.0))
sketch15.addConstraint(Sketcher.Constraint("DistanceY", 0, 2, 0, 1, 140.0))
sketch15.addConstraint(Sketcher.Constraint("DistanceX", -1, 1, 0, 2, 110.0))
sketch15.addConstraint(Sketcher.Constraint("DistanceY", 0, 2, -1, 1, 150.0))
pocket11 = body.newObject("PartDesign::Pocket", "Pocket010")
pocket11.Profile = sketch15
pocket11.Length = 5

# Sketch on XY plane
sketch16 = body.newObject("Sketcher::SketchObject", "Sketch015")
sketch16.AttachmentSupport = (doc.getObject("XY_Plane"), [""])
sketch16.MapMode = "FlatFace"
sketch16.AttachmentOffset = App.Placement(Vector(0, 0, -10), App.Rotation())
sketch16.addGeometry(Part.LineSegment(Vector(110, 36.004908, 0), Vector(110, 33.031384, 0)), False)
sketch16.addGeometry(Part.LineSegment(Vector(110, 33.031384, 0), Vector(165, 33.031384, 0)), False)
sketch16.addGeometry(Part.LineSegment(Vector(165, 33.031384, 0), Vector(165, 36.004908, 0)), False)
sketch16.addGeometry(Part.LineSegment(Vector(165, 36.004908, 0), Vector(110, 36.004908, 0)), False)
sketch16.addConstraint(Sketcher.Constraint("Coincident", 0, 2, 1, 1))
sketch16.addConstraint(Sketcher.Constraint("Coincident", 1, 2, 2, 1))
sketch16.addConstraint(Sketcher.Constraint("Coincident", 2, 2, 3, 1))
sketch16.addConstraint(Sketcher.Constraint("Coincident", 3, 2, 0, 1))
sketch16.addConstraint(Sketcher.Constraint("Vertical", 0))
sketch16.addConstraint(Sketcher.Constraint("Horizontal", 1))
sketch16.addConstraint(Sketcher.Constraint("Vertical", 2))
sketch16.addConstraint(Sketcher.Constraint("Horizontal", 3))
sketch16.addConstraint(Sketcher.Constraint("DistanceX", 1, 1, 1, 2, 55.0))
sketch16.addConstraint(Sketcher.Constraint("DistanceX", -1, 1, 0, 2, 110.0))
sketch16.addConstraint(Sketcher.Constraint("DistanceY", 0, 2, 0, 1, 2.973523))
sketch16.addConstraint(Sketcher.Constraint("DistanceY", -1, 1, 0, 2, 33.031384))
pad5 = body.newObject("PartDesign::Pad", "Pad004")
pad5.Profile = sketch16
pad5.Length = 7

# Sketch on XY plane
sketch17 = body.newObject("Sketcher::SketchObject", "Sketch016")
sketch17.AttachmentSupport = (doc.getObject("XY_Plane"), [""])
sketch17.MapMode = "FlatFace"
sketch17.AttachmentOffset = App.Placement(Vector(0, 0, -150), App.Rotation())
sketch17.addGeometry(Part.LineSegment(Vector(165, 36.004908, 0), Vector(165, 33.031384, 0)), False)
sketch17.addGeometry(Part.LineSegment(Vector(165, 33.031384, 0), Vector(110, 33.031384, 0)), False)
sketch17.addGeometry(Part.LineSegment(Vector(110, 33.031384, 0), Vector(110, 36.004908, 0)), False)
sketch17.addGeometry(Part.LineSegment(Vector(110, 36.004908, 0), Vector(165, 36.004908, 0)), False)
sketch17.addConstraint(Sketcher.Constraint("Coincident", 0, 2, 1, 1))
sketch17.addConstraint(Sketcher.Constraint("Coincident", 1, 2, 2, 1))
sketch17.addConstraint(Sketcher.Constraint("Coincident", 2, 2, 3, 1))
sketch17.addConstraint(Sketcher.Constraint("Coincident", 3, 2, 0, 1))
sketch17.addConstraint(Sketcher.Constraint("Vertical", 0))
sketch17.addConstraint(Sketcher.Constraint("Horizontal", 1))
sketch17.addConstraint(Sketcher.Constraint("Vertical", 2))
sketch17.addConstraint(Sketcher.Constraint("Horizontal", 3))
sketch17.addConstraint(Sketcher.Constraint("DistanceX", 1, 2, 1, 1, 55.0))
sketch17.addConstraint(Sketcher.Constraint("DistanceX", -1, 1, 0, 2, 165.0))
sketch17.addConstraint(Sketcher.Constraint("DistanceY", 0, 2, 0, 1, 2.973523))
sketch17.addConstraint(Sketcher.Constraint("DistanceY", -1, 1, 0, 2, 33.031384))
pad6 = body.newObject("PartDesign::Pad", "Pad005")
pad6.Profile = sketch17
pad6.Length = 7
pad6.Reversed = True

# Sketch on XZ plane
sketch18 = body.newObject("Sketcher::SketchObject", "Sketch017")
sketch18.AttachmentSupport = (doc.getObject("XZ_Plane"), [""])
sketch18.MapMode = "FlatFace"
sketch18.AttachmentOffset = App.Placement(Vector(0, 0, -36.004908), App.Rotation())
sketch18.addGeometry(Part.LineSegment(Vector(110, -157, 0), Vector(110, -156.007066, 0)), False)
sketch18.addGeometry(Part.LineSegment(Vector(110, -156.007066, 0), Vector(164.030853, -156.007066, 0)), False)
sketch18.addGeometry(Part.LineSegment(Vector(164.030853, -156.007066, 0), Vector(164.030853, -4.05002, 0)), False)
sketch18.addGeometry(Part.LineSegment(Vector(164.030853, -4.05002, 0), Vector(110, -4.05002, 0)), False)
sketch18.addGeometry(Part.LineSegment(Vector(110, -4.05002, 0), Vector(110, -3, 0)), False)
sketch18.addGeometry(Part.LineSegment(Vector(110, -3, 0), Vector(165, -3, 0)), False)
sketch18.addGeometry(Part.LineSegment(Vector(165, -3, 0), Vector(165, -157, 0)), False)
sketch18.addGeometry(Part.LineSegment(Vector(165, -157, 0), Vector(110, -157, 0)), False)
sketch18.addConstraint(Sketcher.Constraint("Coincident", 0, 2, 1, 1))
sketch18.addConstraint(Sketcher.Constraint("Coincident", 1, 2, 2, 1))
sketch18.addConstraint(Sketcher.Constraint("Coincident", 2, 2, 3, 1))
sketch18.addConstraint(Sketcher.Constraint("Coincident", 3, 2, 4, 1))
sketch18.addConstraint(Sketcher.Constraint("Coincident", 4, 2, 5, 1))
sketch18.addConstraint(Sketcher.Constraint("Coincident", 5, 2, 6, 1))
sketch18.addConstraint(Sketcher.Constraint("Coincident", 6, 2, 7, 1))
sketch18.addConstraint(Sketcher.Constraint("Coincident", 7, 2, 0, 1))
sketch18.addConstraint(Sketcher.Constraint("Vertical", 0))
sketch18.addConstraint(Sketcher.Constraint("Horizontal", 1))
sketch18.addConstraint(Sketcher.Constraint("Vertical", 2))
sketch18.addConstraint(Sketcher.Constraint("Horizontal", 3))
sketch18.addConstraint(Sketcher.Constraint("Vertical", 4))
sketch18.addConstraint(Sketcher.Constraint("Horizontal", 5))
sketch18.addConstraint(Sketcher.Constraint("Vertical", 6))
sketch18.addConstraint(Sketcher.Constraint("Horizontal", 7))
sketch18.addConstraint(Sketcher.Constraint("Vertical", 0, 2, 3, 2))
sketch18.addConstraint(Sketcher.Constraint("DistanceX", 5, 1, 5, 2, 55.0))
sketch18.addConstraint(Sketcher.Constraint("DistanceY", 6, 2, 6, 1, 154.0))
sketch18.addConstraint(Sketcher.Constraint("DistanceX", -1, 1, 0, 2, 110.0))
sketch18.addConstraint(Sketcher.Constraint("DistanceY", 4, 2, -1, 1, 3.0))
sketch18.addConstraint(Sketcher.Constraint("DistanceY", 4, 1, 4, 2, 1.05002))
sketch18.addConstraint(Sketcher.Constraint("DistanceX", 1, 1, 1, 2, 54.030853))
sketch18.addConstraint(Sketcher.Constraint("DistanceY", 0, 1, 0, 2, 0.992934))
pad7 = body.newObject("PartDesign::Pad", "Pad006")
pad7.Profile = sketch18
pad7.Length = 2
pad7.Reversed = True

doc.recompute()
